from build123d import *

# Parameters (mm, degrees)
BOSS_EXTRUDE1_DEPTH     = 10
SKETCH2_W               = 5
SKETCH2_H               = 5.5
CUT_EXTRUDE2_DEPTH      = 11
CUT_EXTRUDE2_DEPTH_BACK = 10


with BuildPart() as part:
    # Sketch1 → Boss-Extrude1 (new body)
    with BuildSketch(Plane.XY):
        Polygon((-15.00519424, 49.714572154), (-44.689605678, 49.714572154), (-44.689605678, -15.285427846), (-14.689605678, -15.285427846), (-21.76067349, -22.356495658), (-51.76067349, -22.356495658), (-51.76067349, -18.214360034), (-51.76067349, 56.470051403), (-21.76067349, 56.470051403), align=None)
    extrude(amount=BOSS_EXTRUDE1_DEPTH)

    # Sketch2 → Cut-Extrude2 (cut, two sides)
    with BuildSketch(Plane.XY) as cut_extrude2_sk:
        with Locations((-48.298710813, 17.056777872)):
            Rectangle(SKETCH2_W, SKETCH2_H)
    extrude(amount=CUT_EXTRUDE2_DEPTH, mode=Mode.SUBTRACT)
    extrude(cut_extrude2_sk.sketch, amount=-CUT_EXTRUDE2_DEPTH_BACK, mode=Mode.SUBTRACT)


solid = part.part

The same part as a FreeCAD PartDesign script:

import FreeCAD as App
import Part
import Sketcher
Q = App.Units.Quantity

doc = App.newDocument("Part")
body = doc.addObject("PartDesign::Body", "Body")

# Sketch on XY plane
sketch1 = body.newObject("Sketcher::SketchObject", "Sketch")
sketch1.AttachmentSupport = (doc.getObject("XY_Plane"), [""])
sketch1.MapMode = "FlatFace"
sketch1.addGeometry([
    Part.LineSegment(App.Vector(-44.689606, 49.714572, 0), App.Vector(-15.005194, 49.714572, 0)),  # 0
    Part.LineSegment(App.Vector(-15.005194, 49.714572, 0), App.Vector(-21.760673, 56.470051, 0)),  # 1
    Part.LineSegment(App.Vector(-21.760673, 56.470051, 0), App.Vector(-51.760673, 56.470051, 0)),  # 2
    Part.LineSegment(App.Vector(-51.760673, 56.470051, 0), App.Vector(-51.760673, -22.356496, 0)),  # 3
    Part.LineSegment(App.Vector(-51.760673, -22.356496, 0), App.Vector(-21.760673, -22.356496, 0)),  # 4
    Part.LineSegment(App.Vector(-21.760673, -22.356496, 0), App.Vector(-14.689606, -15.285428, 0)),  # 5
    Part.LineSegment(App.Vector(-14.689606, -15.285428, 0), App.Vector(-44.689606, -15.285428, 0)),  # 6
    Part.LineSegment(App.Vector(-44.689606, -15.285428, 0), App.Vector(-44.689606, 49.714572, 0)),  # 7
], False)
sketch1.addConstraint([
    Sketcher.Constraint("Coincident", 0, 2, 1, 1),
    Sketcher.Constraint("Coincident", 1, 2, 2, 1),
    Sketcher.Constraint("Coincident", 2, 2, 3, 1),
    Sketcher.Constraint("Coincident", 3, 2, 4, 1),
    Sketcher.Constraint("Coincident", 4, 2, 5, 1),
    Sketcher.Constraint("Coincident", 5, 2, 6, 1),
    Sketcher.Constraint("Coincident", 6, 2, 7, 1),
    Sketcher.Constraint("Coincident", 7, 2, 0, 1),
    Sketcher.Constraint("Horizontal", 0),
    Sketcher.Constraint("Horizontal", 2),
    Sketcher.Constraint("Vertical", 3),
    Sketcher.Constraint("Horizontal", 4),
    Sketcher.Constraint("Horizontal", 6),
    Sketcher.Constraint("Vertical", 7),
    Sketcher.Constraint("Perpendicular", 1, 5),
    Sketcher.Constraint("Vertical", 1, 2, 4, 2),
    Sketcher.Constraint("Equal", 4, 6),
    Sketcher.Constraint("DistanceX", 2, 2, 2, 1, 30.0),
    Sketcher.Constraint("DistanceY", 7, 1, 7, 2, 65.0),
    Sketcher.Constraint("Angle", 1, Q("135 deg")),
    Sketcher.Constraint("Distance", 5, 10.0),
    Sketcher.Constraint("DistanceX", 0, 1, 0, 2, 29.684411),
    Sketcher.Constraint("DistanceY", -1, 1, 1, 2, 56.470051),
    Sketcher.Constraint("DistanceX", 0, 2, -1, 1, 15.005194),
])
pad1 = body.newObject("PartDesign::Pad", "Pad")
pad1.Profile = sketch1
pad1.Length = 10

# Sketch on XY plane
sketch2 = body.newObject("Sketcher::SketchObject", "Sketch001")
sketch2.AttachmentSupport = (doc.getObject("XY_Plane"), [""])
sketch2.MapMode = "FlatFace"
sketch2.addGeometry([
    Part.LineSegment(App.Vector(-50.798711, 19.806778, 0), App.Vector(-50.798711, 14.306778, 0)),
    Part.LineSegment(App.Vector(-50.798711, 14.306778, 0), App.Vector(-45.798711, 14.306778, 0)),
    Part.LineSegment(App.Vector(-45.798711, 14.306778, 0), App.Vector(-45.798711, 19.806778, 0)),
    Part.LineSegment(App.Vector(-45.798711, 19.806778, 0), App.Vector(-50.798711, 19.806778, 0)),
], False)
sketch2.addConstraint([
    Sketcher.Constraint("Coincident", 0, 2, 1, 1),
    Sketcher.Constraint("Coincident", 1, 2, 2, 1),
    Sketcher.Constraint("Coincident", 2, 2, 3, 1),
    Sketcher.Constraint("Coincident", 3, 2, 0, 1),
    Sketcher.Constraint("Vertical", 0),
    Sketcher.Constraint("Horizontal", 1),
    Sketcher.Constraint("Vertical", 2),
    Sketcher.Constraint("Horizontal", 3),
    Sketcher.Constraint("DistanceX", 1, 1, 1, 2, 5.0),
    Sketcher.Constraint("DistanceY", 0, 2, 0, 1, 5.5),
    Sketcher.Constraint("DistanceX", 0, 2, -1, 1, 50.798711),
    Sketcher.Constraint("DistanceY", -1, 1, 0, 2, 14.306778),
])
pocket1 = body.newObject("PartDesign::Pocket", "Pocket")
pocket1.Profile = sketch2
pocket1.Type = "ThroughAll"
pocket1.Midplane = True

doc.recompute()
